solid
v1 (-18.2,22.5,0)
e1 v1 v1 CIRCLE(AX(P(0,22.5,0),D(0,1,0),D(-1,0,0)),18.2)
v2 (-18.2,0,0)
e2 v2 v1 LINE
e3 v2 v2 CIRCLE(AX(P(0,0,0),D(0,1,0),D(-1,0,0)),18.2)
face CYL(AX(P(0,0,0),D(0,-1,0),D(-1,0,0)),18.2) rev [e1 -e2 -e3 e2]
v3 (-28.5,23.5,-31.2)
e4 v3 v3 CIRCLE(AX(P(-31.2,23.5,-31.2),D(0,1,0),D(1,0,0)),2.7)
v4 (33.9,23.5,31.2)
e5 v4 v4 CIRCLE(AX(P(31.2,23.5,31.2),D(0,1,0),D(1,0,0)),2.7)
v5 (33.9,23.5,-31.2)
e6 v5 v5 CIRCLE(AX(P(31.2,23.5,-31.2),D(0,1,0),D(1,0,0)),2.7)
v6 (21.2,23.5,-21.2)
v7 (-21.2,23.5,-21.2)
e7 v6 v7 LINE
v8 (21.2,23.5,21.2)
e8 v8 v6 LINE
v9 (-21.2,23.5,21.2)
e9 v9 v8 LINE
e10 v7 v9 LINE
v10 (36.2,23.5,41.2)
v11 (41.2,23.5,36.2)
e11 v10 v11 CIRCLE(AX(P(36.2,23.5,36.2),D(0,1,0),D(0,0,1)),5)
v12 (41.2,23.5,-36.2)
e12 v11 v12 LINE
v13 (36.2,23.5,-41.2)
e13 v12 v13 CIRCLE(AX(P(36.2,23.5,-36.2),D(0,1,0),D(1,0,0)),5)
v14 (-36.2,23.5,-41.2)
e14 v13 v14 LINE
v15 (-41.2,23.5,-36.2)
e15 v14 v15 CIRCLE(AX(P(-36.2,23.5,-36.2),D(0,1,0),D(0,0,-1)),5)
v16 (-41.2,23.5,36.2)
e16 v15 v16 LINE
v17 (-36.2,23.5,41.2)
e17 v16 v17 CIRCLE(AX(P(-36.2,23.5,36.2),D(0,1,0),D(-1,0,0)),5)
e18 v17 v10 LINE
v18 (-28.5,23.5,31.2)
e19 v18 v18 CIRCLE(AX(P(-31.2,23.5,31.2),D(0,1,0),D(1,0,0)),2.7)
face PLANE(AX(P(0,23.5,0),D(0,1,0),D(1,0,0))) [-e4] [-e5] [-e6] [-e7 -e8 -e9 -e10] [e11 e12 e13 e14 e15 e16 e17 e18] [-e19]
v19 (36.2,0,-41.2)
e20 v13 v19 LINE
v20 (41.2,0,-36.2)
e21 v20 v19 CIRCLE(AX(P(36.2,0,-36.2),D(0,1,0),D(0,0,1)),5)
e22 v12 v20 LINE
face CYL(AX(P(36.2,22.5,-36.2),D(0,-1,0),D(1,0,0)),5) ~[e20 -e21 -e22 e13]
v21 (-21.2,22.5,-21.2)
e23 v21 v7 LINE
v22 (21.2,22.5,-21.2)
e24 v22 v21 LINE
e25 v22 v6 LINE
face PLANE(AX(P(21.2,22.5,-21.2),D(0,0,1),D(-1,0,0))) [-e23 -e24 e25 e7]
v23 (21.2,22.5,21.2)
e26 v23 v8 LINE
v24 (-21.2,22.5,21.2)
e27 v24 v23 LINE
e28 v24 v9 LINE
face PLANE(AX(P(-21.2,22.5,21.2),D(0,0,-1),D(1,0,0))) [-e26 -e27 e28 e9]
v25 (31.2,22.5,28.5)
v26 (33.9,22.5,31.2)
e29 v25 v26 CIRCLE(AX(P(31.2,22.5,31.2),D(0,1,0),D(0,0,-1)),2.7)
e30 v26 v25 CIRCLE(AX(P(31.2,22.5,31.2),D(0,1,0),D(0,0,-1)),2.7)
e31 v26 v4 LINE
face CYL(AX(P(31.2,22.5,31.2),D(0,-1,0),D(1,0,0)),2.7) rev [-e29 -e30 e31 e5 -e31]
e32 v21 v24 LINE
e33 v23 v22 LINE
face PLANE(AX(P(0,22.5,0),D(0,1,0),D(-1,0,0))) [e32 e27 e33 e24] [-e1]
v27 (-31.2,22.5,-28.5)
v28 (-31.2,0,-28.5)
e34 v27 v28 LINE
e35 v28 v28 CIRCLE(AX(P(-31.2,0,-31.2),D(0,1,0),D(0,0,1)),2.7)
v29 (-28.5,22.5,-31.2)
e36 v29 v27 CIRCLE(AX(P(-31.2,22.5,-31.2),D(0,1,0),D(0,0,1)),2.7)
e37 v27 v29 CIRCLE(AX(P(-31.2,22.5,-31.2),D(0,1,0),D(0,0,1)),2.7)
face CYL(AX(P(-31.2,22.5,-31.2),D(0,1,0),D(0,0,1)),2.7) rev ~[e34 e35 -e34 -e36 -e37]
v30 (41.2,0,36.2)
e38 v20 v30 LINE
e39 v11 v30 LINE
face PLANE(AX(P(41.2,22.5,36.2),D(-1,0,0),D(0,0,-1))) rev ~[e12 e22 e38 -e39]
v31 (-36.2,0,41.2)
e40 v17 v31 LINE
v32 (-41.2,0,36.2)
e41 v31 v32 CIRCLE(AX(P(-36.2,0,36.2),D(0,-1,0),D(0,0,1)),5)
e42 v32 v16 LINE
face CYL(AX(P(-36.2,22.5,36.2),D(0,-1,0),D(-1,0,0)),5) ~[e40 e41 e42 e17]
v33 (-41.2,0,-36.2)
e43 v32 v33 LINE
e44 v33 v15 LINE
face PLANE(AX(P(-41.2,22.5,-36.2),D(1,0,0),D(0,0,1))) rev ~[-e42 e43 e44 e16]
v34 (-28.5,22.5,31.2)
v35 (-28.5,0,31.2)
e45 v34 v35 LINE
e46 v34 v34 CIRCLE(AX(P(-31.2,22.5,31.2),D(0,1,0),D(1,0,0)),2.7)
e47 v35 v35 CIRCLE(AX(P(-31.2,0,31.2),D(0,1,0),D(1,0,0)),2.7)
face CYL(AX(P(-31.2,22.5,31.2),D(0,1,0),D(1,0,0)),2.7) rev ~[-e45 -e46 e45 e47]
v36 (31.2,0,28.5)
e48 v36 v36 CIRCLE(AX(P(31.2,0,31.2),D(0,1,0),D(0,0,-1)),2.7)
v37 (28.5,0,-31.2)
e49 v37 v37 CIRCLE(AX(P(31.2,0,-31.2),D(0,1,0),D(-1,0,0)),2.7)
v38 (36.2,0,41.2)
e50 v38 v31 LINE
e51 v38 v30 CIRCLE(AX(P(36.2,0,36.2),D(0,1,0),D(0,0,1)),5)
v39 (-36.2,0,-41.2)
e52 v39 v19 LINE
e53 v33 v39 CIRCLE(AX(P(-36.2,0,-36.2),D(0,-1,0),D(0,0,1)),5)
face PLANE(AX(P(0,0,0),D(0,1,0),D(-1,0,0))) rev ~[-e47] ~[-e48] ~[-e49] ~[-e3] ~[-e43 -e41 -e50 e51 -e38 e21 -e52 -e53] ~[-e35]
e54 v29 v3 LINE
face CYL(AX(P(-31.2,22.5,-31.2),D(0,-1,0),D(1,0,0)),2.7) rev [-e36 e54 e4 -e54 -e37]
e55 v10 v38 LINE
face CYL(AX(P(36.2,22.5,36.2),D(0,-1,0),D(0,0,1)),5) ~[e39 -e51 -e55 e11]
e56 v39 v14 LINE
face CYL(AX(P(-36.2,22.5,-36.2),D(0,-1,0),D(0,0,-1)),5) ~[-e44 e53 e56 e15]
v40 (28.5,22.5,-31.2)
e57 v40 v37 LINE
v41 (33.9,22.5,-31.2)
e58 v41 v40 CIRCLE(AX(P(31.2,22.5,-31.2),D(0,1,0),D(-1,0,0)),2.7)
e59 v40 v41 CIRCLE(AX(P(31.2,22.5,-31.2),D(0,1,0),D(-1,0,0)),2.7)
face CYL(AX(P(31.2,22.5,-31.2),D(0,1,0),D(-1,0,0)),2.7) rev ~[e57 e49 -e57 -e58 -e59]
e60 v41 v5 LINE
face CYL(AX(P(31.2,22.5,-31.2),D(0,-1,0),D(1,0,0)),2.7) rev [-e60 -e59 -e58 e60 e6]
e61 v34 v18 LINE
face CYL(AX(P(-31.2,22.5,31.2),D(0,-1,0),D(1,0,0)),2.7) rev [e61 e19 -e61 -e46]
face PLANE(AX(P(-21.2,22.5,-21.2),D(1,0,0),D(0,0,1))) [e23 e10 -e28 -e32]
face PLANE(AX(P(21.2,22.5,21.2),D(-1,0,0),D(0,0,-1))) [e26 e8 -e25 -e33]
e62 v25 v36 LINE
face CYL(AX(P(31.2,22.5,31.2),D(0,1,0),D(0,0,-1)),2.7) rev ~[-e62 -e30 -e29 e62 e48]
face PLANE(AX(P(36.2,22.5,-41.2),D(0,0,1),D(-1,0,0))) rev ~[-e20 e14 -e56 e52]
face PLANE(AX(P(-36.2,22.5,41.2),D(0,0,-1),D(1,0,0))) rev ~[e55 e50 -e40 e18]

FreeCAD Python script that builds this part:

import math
import FreeCAD as App
import Part
import Sketcher
from FreeCAD import Vector
Q = App.Units.Quantity


def edges_at(feature, points):
    """Names of the edges that pass closest to the given points."""
    edges = feature.Shape.Edges
    near = lambda p: min(range(len(edges)), key=lambda i: edges[i].distToShape(Part.Vertex(*p))[0])
    return sorted({f"Edge{near(p) + 1}" for p in points})

doc = App.newDocument("Part")
body = doc.addObject("PartDesign::Body", "Body")

# Sketch on XZ plane
sketch1 = doc.addObject("Sketcher::SketchObject", "Sketch")
body.addObject(sketch1)
sketch1.AttachmentSupport = (doc.XZ_Plane, [""])
sketch1.MapMode = "FlatFace"
sketch1.addGeometry([
    Part.LineSegment(Vector(-41, 41, 0), Vector(41, 41, 0)),  # 0
    Part.LineSegment(Vector(41, 41, 0), Vector(41, -41, 0)),  # 1
    Part.LineSegment(Vector(41, -41, 0), Vector(-41, -41, 0)),  # 2
    Part.LineSegment(Vector(-41, -41, 0), Vector(-41, 41, 0)),  # 3
    Part.Circle(Vector(0, 0, 0), Vector(0, 0, 1), 18),  # 4
], False)
sketch1.addConstraint([
    Sketcher.Constraint("Coincident", 0, 2, 1, 1),
    Sketcher.Constraint("Coincident", 1, 2, 2, 1),
    Sketcher.Constraint("Coincident", 2, 2, 3, 1),
    Sketcher.Constraint("Coincident", 3, 2, 0, 1),
    Sketcher.Constraint("Horizontal", 0),
    Sketcher.Constraint("Vertical", 1),
    Sketcher.Constraint("Horizontal", 2),
    Sketcher.Constraint("Vertical", 3),
    Sketcher.Constraint("Coincident", 4, 3, -1, 1),
    Sketcher.Constraint("Symmetric", 0, 2, 2, 2, -1, 1),
    Sketcher.Constraint("Equal", 2, 1),
    Sketcher.Constraint("Diameter", 4, Q("36.4 mm")),
    Sketcher.Constraint("DistanceX", 0, 1, 0, 2, Q("82.4 mm")),
])
pad1 = doc.addObject("PartDesign::Pad", "Pad")
body.addObject(pad1)
pad1.Profile = sketch1
pad1.Length = 22.5
pad1.Reversed = True

# Sketch on XZ plane
sketch2 = doc.addObject("Sketcher::SketchObject", "Sketch001")
body.addObject(sketch2)
sketch2.AttachmentSupport = (doc.XZ_Plane, [""])
sketch2.MapMode = "FlatFace"
sketch2.AttachmentOffset = App.Placement(Vector(0, 0, -22.5), App.Rotation())
sketch2.addGeometry(Part.Circle(Vector(-31.2, 31.2, 0), Vector(0, 0, 1), 2.7), False)
sketch2.addConstraint([
    Sketcher.Constraint("Diameter", 0, Q("5.4 mm")),
    Sketcher.Constraint("DistanceX", 0, 3, -1, 1, Q("31.2 mm")),
    Sketcher.Constraint("DistanceY", -1, 1, 0, 3, Q("31.2 mm")),
])
pocket1 = doc.addObject("PartDesign::Pocket", "Pocket")
body.addObject(pocket1)
pocket1.Profile = sketch2
pocket1.Type = "ThroughAll"
pocket1.Reversed = True
doc.recompute()

polarpattern = doc.addObject("PartDesign::PolarPattern", "PolarPattern")
body.addObject(polarpattern)
polarpattern.Originals = [pocket1]
polarpattern.Axis = (doc.Y_Axis, [""])
polarpattern.Angle = 360
polarpattern.Occurrences = 4
body.Tip = polarpattern
doc.recompute()

fillet = doc.addObject("PartDesign::Fillet", "Fillet")
body.addObject(fillet)
fillet.Base = (polarpattern, edges_at(polarpattern, [
    (-41.2, 11.25, 41.2),
    (41.2, 11.25, 41.2),
    (41.2, 11.25, -41.2),
    (-41.2, 11.25, -41.2),
]))
fillet.Radius = 5

# Sketch on XZ plane
sketch3 = doc.addObject("Sketcher::SketchObject", "Sketch002")
body.addObject(sketch3)
sketch3.AttachmentSupport = (doc.XZ_Plane, [""])
sketch3.MapMode = "FlatFace"
sketch3.AttachmentOffset = App.Placement(Vector(0, 0, -22.5), App.Rotation())
sketch3.addGeometry([
    Part.LineSegment(Vector(36.2, -41.2, 0), Vector(-36.2, -41.2, 0)),  # 0
    Part.ArcOfCircle(Part.Circle(Vector(-36.2, -36.2, 0), Vector(0, 0, 1), 5), math.radians(180), math.radians(270)),  # 1
    Part.LineSegment(Vector(-41.2, -36.2, 0), Vector(-41.2, 36.2, 0)),  # 2
    Part.ArcOfCircle(Part.Circle(Vector(-36.2, 36.2, 0), Vector(0, 0, 1), 5), math.radians(90), math.radians(180)),  # 3
    Part.LineSegment(Vector(-36.2, 41.2, 0), Vector(36.2, 41.2, 0)),  # 4
    Part.ArcOfCircle(Part.Circle(Vector(36.2, 36.2, 0), Vector(0, 0, 1), 5), math.radians(0), math.radians(90)),  # 5
    Part.LineSegment(Vector(41.2, 36.2, 0), Vector(41.2, -36.2, 0)),  # 6
    Part.ArcOfCircle(Part.Circle(Vector(36.2, -36.2, 0), Vector(0, 0, 1), 5), math.radians(-90), math.radians(0)),  # 7
    Part.Circle(Vector(-31.2, 31.2, 0), Vector(0, 0, 1), 2.7),  # 8
    Part.Circle(Vector(31.2, 31.2, 0), Vector(0, 0, 1), 2.7),  # 9
    Part.Circle(Vector(-31.2, -31.2, 0), Vector(0, 0, 1), 2.7),  # 10
    Part.LineSegment(Vector(21.2, 21.2, 0), Vector(-21.2, 21.2, 0)),  # 11
    Part.LineSegment(Vector(-21.2, 21.2, 0), Vector(-21.2, -21.2, 0)),  # 12
    Part.LineSegment(Vector(-21.2, -21.2, 0), Vector(21.2, -21.2, 0)),  # 13
    Part.LineSegment(Vector(21.2, -21.2, 0), Vector(21.2, 21.2, 0)),  # 14
    Part.Circle(Vector(31.2, -31.2, 0), Vector(0, 0, 1), 2.7),  # 15
], False)
sketch3.addConstraint([
    Sketcher.Constraint("Tangent", 0, 2, 1, 2),
    Sketcher.Constraint("Tangent", 1, 1, 2, 1),
    Sketcher.Constraint("Tangent", 2, 2, 3, 2),
    Sketcher.Constraint("Tangent", 3, 1, 4, 1),
    Sketcher.Constraint("Tangent", 4, 2, 5, 2),
    Sketcher.Constraint("Tangent", 5, 1, 6, 1),
    Sketcher.Constraint("Tangent", 6, 2, 7, 2),
    Sketcher.Constraint("Tangent", 7, 1, 0, 1),
    Sketcher.Constraint("Coincident", 11, 2, 12, 1),
    Sketcher.Constraint("Coincident", 12, 2, 13, 1),
    Sketcher.Constraint("Coincident", 13, 2, 14, 1),
    Sketcher.Constraint("Coincident", 14, 2, 11, 1),
    Sketcher.Constraint("Horizontal", 0),
    Sketcher.Constraint("Vertical", 2),
    Sketcher.Constraint("Horizontal", 4),
    Sketcher.Constraint("Vertical", 6),
    Sketcher.Constraint("Horizontal", 11),
    Sketcher.Constraint("Vertical", 12),
    Sketcher.Constraint("Horizontal", 13),
    Sketcher.Constraint("Vertical", 14),
    Sketcher.Constraint("Equal", 1, 3),
    Sketcher.Constraint("Equal", 3, 5),
    Sketcher.Constraint("Equal", 5, 7),
    Sketcher.Constraint("Equal", 8, 9),
    Sketcher.Constraint("Equal", 9, 10),
    Sketcher.Constraint("Equal", 10, 15),
    Sketcher.Constraint("Symmetric", 1, 3, 5, 3, -1, 1),
    Sketcher.Constraint("Symmetric", 9, 3, 10, 3, -1, 1),
    Sketcher.Constraint("Symmetric", 8, 3, 15, 3, -1, 1),
    Sketcher.Constraint("Symmetric", 11, 2, 13, 2, -1, 1),
    Sketcher.Constraint("Symmetric", 8, 3, 9, 3, -2),
    Sketcher.Constraint("Equal", 4, 2),
    Sketcher.Constraint("Equal", 13, 12),
    Sketcher.Constraint("DistanceX", 11, 2, 11, 1, Q("42.4 mm")),
    Sketcher.Constraint("Radius", 1, Q("5 mm")),
    Sketcher.Constraint("Diameter", 8, Q("5.4 mm")),
    Sketcher.Constraint("DistanceX", 0, 2, 0, 1, Q("72.4 mm")),
    Sketcher.Constraint("DistanceX", 3, 3, 8, 3, Q("5 mm")),
    Sketcher.Constraint("DistanceY", 8, 3, 3, 3, Q("5 mm")),
])
pad2 = doc.addObject("PartDesign::Pad", "Pad001")
body.addObject(pad2)
pad2.Profile = sketch3
pad2.Length = 1
pad2.Reversed = True

doc.recompute()
